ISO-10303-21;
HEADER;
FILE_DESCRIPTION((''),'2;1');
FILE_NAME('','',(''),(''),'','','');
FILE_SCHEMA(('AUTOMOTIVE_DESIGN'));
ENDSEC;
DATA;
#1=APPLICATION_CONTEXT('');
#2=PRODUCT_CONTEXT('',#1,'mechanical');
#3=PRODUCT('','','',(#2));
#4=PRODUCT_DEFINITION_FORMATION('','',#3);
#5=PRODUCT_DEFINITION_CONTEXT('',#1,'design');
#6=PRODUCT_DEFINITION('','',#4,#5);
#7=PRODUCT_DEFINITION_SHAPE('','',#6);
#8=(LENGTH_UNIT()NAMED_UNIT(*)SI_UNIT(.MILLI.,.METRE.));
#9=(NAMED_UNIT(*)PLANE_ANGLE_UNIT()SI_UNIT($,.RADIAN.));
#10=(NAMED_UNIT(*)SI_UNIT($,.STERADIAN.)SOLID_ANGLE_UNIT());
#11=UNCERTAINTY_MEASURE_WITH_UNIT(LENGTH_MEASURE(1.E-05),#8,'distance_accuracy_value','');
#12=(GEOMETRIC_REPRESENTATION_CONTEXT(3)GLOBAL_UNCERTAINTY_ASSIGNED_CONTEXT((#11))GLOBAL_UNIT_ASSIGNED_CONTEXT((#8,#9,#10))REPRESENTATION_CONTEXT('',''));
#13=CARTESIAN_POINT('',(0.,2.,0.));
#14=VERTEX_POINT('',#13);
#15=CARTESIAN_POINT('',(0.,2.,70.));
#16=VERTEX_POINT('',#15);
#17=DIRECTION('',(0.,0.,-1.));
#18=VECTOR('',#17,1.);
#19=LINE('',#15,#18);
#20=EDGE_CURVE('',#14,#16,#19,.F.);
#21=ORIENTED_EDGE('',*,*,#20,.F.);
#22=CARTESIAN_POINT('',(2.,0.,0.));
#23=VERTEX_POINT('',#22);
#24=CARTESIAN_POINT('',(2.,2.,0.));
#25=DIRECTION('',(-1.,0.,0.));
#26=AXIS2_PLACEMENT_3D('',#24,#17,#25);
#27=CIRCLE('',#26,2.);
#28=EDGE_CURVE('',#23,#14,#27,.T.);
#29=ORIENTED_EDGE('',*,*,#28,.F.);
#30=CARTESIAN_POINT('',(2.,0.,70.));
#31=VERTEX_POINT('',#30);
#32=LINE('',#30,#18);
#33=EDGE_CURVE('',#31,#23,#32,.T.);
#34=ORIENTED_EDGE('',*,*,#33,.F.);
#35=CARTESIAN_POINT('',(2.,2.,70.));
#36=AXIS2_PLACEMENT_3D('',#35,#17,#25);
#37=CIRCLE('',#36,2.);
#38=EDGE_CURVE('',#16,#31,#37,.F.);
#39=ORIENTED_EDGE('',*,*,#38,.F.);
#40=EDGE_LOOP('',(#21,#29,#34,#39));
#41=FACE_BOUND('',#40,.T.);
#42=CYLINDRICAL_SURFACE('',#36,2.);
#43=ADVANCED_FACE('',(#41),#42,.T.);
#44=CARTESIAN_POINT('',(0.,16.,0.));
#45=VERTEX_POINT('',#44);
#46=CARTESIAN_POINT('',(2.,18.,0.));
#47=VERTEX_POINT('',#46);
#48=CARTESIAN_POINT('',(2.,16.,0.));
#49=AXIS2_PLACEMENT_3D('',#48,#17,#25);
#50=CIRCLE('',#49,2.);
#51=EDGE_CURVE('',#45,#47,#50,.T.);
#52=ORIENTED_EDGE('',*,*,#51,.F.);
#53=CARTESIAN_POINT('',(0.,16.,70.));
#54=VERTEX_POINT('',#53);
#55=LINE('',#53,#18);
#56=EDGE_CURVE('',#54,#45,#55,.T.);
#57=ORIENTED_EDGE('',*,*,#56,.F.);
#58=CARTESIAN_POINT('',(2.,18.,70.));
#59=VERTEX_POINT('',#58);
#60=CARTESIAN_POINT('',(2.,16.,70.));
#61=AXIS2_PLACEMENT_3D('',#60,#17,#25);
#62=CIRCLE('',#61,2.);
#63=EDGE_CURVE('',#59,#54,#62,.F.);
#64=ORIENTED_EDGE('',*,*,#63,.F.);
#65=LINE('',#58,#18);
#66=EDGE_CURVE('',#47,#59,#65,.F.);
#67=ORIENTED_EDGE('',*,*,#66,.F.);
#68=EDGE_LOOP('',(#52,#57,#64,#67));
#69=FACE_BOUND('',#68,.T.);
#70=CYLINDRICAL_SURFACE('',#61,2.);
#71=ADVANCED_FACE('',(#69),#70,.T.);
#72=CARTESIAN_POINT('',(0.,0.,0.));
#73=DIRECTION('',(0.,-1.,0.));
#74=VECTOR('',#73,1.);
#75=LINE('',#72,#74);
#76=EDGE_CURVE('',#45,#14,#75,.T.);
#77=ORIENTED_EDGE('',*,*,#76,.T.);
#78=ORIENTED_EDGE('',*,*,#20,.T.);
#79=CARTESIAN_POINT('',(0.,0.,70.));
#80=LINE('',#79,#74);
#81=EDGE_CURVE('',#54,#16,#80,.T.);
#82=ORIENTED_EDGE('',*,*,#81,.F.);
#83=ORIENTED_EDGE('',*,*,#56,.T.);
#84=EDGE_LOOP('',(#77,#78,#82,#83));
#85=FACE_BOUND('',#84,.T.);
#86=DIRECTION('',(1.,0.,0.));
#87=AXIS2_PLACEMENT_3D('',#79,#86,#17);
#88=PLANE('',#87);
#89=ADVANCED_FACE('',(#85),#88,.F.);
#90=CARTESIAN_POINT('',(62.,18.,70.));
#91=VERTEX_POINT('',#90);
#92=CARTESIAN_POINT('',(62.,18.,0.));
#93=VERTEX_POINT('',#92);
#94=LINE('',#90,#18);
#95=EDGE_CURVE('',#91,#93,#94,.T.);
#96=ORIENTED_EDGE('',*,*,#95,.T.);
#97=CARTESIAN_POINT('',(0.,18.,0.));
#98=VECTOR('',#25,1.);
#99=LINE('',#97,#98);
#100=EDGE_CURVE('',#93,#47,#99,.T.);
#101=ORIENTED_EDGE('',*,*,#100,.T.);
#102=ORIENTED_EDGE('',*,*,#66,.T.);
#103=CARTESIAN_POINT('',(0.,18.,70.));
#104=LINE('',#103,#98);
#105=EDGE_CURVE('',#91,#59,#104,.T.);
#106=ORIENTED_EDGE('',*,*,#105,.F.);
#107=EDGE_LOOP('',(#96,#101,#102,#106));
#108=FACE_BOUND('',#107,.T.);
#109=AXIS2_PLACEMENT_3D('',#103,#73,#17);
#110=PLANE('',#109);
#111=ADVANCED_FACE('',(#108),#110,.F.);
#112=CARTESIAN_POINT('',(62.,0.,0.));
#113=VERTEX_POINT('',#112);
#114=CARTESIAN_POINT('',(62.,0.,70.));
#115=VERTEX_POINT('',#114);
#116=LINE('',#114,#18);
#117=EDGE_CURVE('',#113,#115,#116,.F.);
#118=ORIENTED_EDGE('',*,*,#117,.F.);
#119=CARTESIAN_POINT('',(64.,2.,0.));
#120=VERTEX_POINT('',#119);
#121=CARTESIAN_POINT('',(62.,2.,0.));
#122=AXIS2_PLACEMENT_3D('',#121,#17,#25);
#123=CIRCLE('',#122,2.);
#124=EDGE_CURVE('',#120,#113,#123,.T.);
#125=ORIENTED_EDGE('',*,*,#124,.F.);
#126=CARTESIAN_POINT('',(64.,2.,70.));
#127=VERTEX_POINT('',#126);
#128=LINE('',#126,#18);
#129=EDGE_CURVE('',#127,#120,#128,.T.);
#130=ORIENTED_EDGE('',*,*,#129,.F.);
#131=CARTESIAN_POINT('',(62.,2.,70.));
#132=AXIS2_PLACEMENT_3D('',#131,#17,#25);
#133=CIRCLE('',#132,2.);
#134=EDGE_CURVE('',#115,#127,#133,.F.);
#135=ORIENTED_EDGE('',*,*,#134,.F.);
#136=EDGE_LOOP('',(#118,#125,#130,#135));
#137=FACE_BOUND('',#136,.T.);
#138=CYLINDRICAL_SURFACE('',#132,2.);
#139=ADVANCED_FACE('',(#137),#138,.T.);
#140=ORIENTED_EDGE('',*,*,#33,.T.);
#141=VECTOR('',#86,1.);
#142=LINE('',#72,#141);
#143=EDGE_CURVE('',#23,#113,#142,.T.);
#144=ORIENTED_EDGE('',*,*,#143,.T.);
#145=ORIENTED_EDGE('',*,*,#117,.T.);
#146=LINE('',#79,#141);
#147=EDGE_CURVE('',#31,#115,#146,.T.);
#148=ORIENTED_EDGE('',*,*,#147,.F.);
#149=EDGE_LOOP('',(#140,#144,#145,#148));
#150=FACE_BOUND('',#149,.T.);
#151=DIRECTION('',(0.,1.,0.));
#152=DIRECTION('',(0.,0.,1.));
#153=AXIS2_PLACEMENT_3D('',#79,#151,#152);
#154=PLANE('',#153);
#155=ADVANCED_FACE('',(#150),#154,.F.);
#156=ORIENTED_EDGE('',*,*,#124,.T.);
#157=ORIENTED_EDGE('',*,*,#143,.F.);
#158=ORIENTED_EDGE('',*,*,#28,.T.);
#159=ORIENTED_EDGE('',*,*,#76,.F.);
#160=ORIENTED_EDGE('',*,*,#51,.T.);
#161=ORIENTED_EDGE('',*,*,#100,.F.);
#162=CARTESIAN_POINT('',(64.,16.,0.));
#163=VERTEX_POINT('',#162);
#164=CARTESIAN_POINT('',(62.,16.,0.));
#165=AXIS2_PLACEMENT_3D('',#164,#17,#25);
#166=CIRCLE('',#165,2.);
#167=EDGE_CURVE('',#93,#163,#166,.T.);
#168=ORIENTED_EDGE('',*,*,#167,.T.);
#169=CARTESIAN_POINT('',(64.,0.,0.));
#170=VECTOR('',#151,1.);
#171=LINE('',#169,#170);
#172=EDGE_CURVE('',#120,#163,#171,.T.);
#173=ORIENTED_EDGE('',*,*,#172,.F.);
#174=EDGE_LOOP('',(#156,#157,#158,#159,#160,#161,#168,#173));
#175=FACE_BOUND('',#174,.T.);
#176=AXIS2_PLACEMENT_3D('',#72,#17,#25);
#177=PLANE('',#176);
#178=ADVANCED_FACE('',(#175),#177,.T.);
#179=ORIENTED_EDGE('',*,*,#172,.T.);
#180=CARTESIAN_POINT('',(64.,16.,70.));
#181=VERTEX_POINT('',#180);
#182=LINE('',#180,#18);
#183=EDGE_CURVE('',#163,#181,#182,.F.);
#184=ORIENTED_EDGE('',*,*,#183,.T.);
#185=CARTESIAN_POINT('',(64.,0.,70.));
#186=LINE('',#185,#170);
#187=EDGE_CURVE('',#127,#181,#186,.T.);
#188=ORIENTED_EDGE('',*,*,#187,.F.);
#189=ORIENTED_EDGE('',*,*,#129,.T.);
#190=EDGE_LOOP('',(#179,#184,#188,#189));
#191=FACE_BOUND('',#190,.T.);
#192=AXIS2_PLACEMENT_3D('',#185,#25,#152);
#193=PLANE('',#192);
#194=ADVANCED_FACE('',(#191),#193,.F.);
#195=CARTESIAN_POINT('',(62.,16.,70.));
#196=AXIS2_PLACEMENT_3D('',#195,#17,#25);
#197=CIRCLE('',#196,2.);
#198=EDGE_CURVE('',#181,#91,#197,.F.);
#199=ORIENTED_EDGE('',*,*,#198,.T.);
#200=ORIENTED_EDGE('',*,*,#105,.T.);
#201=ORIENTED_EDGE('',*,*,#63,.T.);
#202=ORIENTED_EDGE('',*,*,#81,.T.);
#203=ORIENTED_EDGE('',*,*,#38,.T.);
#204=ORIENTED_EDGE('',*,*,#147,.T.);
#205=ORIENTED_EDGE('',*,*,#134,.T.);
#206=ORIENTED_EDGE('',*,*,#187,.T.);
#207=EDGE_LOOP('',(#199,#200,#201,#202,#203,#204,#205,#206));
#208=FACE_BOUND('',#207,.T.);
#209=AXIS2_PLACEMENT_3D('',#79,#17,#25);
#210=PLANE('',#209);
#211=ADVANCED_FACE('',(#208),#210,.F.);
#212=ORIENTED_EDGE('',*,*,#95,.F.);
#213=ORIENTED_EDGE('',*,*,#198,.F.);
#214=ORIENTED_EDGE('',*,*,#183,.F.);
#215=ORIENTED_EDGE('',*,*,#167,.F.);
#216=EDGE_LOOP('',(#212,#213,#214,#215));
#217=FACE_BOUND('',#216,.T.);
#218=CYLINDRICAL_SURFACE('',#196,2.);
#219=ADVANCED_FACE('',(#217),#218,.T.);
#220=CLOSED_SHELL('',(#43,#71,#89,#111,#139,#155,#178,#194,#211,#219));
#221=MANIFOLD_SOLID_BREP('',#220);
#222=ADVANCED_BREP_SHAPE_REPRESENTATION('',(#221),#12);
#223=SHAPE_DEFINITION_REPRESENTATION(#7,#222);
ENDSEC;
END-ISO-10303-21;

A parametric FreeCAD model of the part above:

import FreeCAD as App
import Part
import Sketcher

V = App.Vector
Q = App.Units.Quantity


def edges_at(feature, points):
    """Names of the edges that pass closest to the given points."""
    edges = feature.Shape.Edges
    near = lambda p: min(range(len(edges)), key=lambda i: edges[i].distToShape(Part.Vertex(*p))[0])
    return sorted({f"Edge{near(p) + 1}" for p in points})


def add_polygon(sketch, points):
    """Adds a closed chain of lines whose ends are joined by coincident constraints."""
    first, n = sketch.GeometryCount, len(points)
    for a, b in zip(points, points[1:] + points[:1]):
        sketch.addGeometry(Part.LineSegment(App.Vector(*a, 0), App.Vector(*b, 0)), False)
    for i in range(n):
        sketch.addConstraint(Sketcher.Constraint("Coincident", first + i, 2, first + (i + 1) % n, 1))

doc = App.newDocument("Part")
body = doc.addObject("PartDesign::Body", "Body")

sketch1 = body.newObject("Sketcher::SketchObject", "Sketch")
sketch1.AttachmentSupport = (doc.getObject("XY_Plane"), [""])
sketch1.MapMode = "FlatFace"
add_polygon(sketch1, [(0, 18), (0, 0), (64, 0), (64, 18)])
sketch1.addConstraint([
    Sketcher.Constraint("Vertical", 0),
    Sketcher.Constraint("Horizontal", 1),
    Sketcher.Constraint("Vertical", 2),
    Sketcher.Constraint("Horizontal", 3),
    Sketcher.Constraint("Coincident", 0, 2, -1, 1),
    Sketcher.Constraint("DistanceX", 1, 1, 1, 2, Q("64 mm")),
    Sketcher.Constraint("DistanceY", 0, 2, 0, 1, Q("18 mm")),
])
pad1 = body.newObject("PartDesign::Pad", "Pad")
pad1.Profile = sketch1
pad1.Length = 70
doc.recompute()

fillet = body.newObject("PartDesign::Fillet", "Fillet")
fillet.Base = (pad1, edges_at(pad1, [
    (0, 18, 35),
    (64, 18, 35),
    (64, 0, 35),
    (0, 0, 35),
]))
fillet.Radius = 2

doc.recompute()
